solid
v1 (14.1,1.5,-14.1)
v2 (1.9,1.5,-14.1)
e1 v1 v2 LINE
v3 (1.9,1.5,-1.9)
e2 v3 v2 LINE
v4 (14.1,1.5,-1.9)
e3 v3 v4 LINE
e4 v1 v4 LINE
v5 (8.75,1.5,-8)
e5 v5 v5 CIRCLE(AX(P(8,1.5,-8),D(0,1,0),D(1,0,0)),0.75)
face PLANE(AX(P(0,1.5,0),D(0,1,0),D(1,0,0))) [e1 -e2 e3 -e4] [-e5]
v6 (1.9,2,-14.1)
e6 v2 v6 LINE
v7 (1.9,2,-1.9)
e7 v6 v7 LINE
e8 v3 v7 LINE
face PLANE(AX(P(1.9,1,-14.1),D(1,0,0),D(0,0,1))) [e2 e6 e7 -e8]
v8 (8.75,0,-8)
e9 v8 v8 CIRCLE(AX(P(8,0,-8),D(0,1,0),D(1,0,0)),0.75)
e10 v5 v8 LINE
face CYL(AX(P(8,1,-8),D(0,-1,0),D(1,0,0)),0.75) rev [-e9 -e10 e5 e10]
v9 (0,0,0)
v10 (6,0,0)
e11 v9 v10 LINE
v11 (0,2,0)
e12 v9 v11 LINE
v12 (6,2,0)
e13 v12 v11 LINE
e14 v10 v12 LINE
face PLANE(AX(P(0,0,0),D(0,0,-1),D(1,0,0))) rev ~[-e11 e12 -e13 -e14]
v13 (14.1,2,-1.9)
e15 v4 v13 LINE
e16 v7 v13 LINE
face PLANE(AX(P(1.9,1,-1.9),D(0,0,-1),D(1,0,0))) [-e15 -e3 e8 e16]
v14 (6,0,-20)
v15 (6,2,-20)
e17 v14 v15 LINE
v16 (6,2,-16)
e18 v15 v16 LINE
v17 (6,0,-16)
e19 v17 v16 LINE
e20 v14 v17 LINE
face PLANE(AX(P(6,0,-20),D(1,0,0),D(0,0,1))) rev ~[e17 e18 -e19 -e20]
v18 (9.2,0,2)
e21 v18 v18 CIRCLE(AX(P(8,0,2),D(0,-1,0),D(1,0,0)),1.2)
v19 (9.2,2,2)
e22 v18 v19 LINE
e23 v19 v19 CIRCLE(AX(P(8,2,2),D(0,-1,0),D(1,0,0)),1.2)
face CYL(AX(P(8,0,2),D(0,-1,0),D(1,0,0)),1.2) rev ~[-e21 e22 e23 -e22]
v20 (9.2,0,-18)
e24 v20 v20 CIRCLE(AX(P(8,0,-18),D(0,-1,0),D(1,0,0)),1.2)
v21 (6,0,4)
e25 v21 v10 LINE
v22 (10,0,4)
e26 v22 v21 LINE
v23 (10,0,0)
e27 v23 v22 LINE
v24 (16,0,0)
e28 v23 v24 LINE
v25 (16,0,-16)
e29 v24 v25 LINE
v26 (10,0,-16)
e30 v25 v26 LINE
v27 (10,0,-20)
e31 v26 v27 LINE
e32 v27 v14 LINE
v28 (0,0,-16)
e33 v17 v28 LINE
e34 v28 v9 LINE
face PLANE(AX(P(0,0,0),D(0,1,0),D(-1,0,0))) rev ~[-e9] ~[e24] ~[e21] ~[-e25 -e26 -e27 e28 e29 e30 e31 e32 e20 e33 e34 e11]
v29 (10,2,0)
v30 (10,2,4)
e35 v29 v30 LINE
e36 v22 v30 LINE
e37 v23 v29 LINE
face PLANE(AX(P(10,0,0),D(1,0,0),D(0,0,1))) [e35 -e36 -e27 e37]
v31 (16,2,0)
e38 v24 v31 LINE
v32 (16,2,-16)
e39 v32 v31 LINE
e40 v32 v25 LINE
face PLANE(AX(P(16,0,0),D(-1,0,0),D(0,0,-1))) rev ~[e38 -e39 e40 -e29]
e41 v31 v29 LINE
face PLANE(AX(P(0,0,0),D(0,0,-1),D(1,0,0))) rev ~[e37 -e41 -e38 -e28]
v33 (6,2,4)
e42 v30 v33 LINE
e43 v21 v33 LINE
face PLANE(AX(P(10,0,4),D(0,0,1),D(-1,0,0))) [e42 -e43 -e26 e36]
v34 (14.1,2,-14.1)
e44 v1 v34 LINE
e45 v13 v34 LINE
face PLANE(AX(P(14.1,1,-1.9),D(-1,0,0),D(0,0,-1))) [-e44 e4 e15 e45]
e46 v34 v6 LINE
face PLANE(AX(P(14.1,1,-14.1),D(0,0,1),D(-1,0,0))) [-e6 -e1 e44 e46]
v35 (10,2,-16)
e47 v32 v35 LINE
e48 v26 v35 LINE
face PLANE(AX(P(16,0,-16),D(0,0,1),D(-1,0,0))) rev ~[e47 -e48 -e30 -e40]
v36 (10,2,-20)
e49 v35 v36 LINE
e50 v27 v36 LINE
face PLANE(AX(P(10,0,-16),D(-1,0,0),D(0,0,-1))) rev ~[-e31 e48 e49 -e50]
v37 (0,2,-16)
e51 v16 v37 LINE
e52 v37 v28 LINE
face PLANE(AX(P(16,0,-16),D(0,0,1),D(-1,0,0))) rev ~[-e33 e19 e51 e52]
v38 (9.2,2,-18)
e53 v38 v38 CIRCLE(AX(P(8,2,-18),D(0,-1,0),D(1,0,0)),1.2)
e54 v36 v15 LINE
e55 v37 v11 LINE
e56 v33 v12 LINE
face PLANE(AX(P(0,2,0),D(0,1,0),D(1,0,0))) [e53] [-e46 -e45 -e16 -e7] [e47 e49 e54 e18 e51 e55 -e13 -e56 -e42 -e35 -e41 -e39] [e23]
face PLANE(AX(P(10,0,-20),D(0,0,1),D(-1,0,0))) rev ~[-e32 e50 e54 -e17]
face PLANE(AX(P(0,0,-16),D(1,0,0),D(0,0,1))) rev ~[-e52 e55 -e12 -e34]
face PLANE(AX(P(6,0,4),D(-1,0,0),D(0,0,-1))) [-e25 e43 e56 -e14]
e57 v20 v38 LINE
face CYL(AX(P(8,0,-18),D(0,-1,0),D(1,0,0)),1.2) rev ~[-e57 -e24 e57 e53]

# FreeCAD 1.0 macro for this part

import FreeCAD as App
import Part
import Sketcher

V = App.Vector
Q = App.Units.Quantity


def add_polygon(sketch, points):
    """Adds a closed chain of lines whose ends are joined by coincident constraints."""
    first, n = sketch.GeometryCount, len(points)
    for a, b in zip(points, points[1:] + points[:1]):
        sketch.addGeometry(Part.LineSegment(App.Vector(*a, 0), App.Vector(*b, 0)), False)
    for i in range(n):
        sketch.addConstraint(Sketcher.Constraint("Coincident", first + i, 2, first + (i + 1) % n, 1))

doc = App.newDocument("Part")
params = doc.addObject("Spreadsheet::Sheet", "Params")
for row, (alias, value) in enumerate([
    ("sketch1_width", "16 mm"),
    ("pad1_length", "1 mm"),
    ("sketch2_width", "16 mm"),
    ("pad2_length", "1 mm"),
    ("sketch3_diameter", "1.5 mm"),
    ("pocket1_length", "1 mm"),
    ("sketch4_diameter", "2.4 mm"),
    ("sketch4_width", "4 mm"),
    ("pad3_length", "2 mm"),
    ("sketch5_width", "14 mm"),
    ("pad4_length", "1 mm"),
    ("sketch6_diameter", "1.5 mm"),
    ("sketch6_width", "12.2 mm"),
    ("pad5_length", "0.5 mm"),
], start=1):
    params.set(f"A{row}", alias)
    params.set(f"B{row}", "=" + value)
    params.setAlias(f"B{row}", alias)

body = doc.addObject("PartDesign::Body", "Body")

sketch1 = body.newObject("Sketcher::SketchObject", "Sketch")
sketch1.AttachmentSupport = (doc.getObject("XZ_Plane"), [""])
sketch1.MapMode = "FlatFace"
add_polygon(sketch1, [(0, -16), (0, 0), (16, 0), (16, -16)])
sketch1.addConstraint([
    Sketcher.Constraint("Vertical", 0),
    Sketcher.Constraint("Horizontal", 1),
    Sketcher.Constraint("Vertical", 2),
    Sketcher.Constraint("Horizontal", 3),
    Sketcher.Constraint("Coincident", 0, 2, -1, 1),
    Sketcher.Constraint("Equal", 3, 0),
    Sketcher.Constraint("DistanceX", 1, 1, 1, 2, Q("16 mm")),
])
sketch1.setExpression("Constraints[10]", "Params.sketch1_width")
pad1 = body.newObject("PartDesign::Pad", "Pad")
pad1.Profile = sketch1
pad1.setExpression("Length", "Params.pad1_length")
pad1.Reversed = True

sketch2 = body.newObject("Sketcher::SketchObject", "Sketch001")
sketch2.AttachmentSupport = (doc.getObject("XZ_Plane"), [""])
sketch2.MapMode = "FlatFace"
sketch2.AttachmentOffset = App.Placement(V(0, 0, -1), App.Rotation())
add_polygon(sketch2, [(16, 0), (16, -16), (0, -16), (0, 0)])
add_polygon(sketch2, [(15, -1), (1, -1), (1, -15), (15, -15)])
sketch2.addConstraint([
    Sketcher.Constraint("Vertical", 0),
    Sketcher.Constraint("Horizontal", 1),
    Sketcher.Constraint("Vertical", 2),
    Sketcher.Constraint("Horizontal", 3),
    Sketcher.Constraint("Horizontal", 4),
    Sketcher.Constraint("Vertical", 5),
    Sketcher.Constraint("Horizontal", 6),
    Sketcher.Constraint("Vertical", 7),
    Sketcher.Constraint("Coincident", 2, 2, -1, 1),
    Sketcher.Constraint("Equal", 3, 0),
    Sketcher.Constraint("Equal", 6, 5),
    Sketcher.Constraint("DistanceX", -1, 1, 4, 2, Q("1 mm")),
    Sketcher.Constraint("DistanceY", 4, 2, -1, 1, Q("1 mm")),
    Sketcher.Constraint("DistanceY", 1, 2, 5, 2, Q("1 mm")),
    Sketcher.Constraint("DistanceX", 1, 2, 1, 1, Q("16 mm")),
])
sketch2.setExpression("Constraints[22]", "Params.sketch2_width")
pad2 = body.newObject("PartDesign::Pad", "Pad001")
pad2.Profile = sketch2
pad2.setExpression("Length", "Params.pad2_length")
pad2.Reversed = True

sketch3 = body.newObject("Sketcher::SketchObject", "Sketch002")
sketch3.AttachmentSupport = (doc.getObject("XZ_Plane"), [""])
sketch3.MapMode = "FlatFace"
sketch3.AttachmentOffset = App.Placement(V(0, 0, -1), App.Rotation())
sketch3.addGeometry(Part.Circle(V(8, -8, 0), V(0, 0, 1), 0.8), False)
sketch3.addConstraint([
    Sketcher.Constraint("Diameter", 0, Q("1.5 mm")),
    Sketcher.Constraint("DistanceX", -1, 1, 0, 3, Q("8 mm")),
    Sketcher.Constraint("DistanceY", 0, 3, -1, 1, Q("8 mm")),
])
sketch3.setExpression("Constraints[0]", "Params.sketch3_diameter")
pocket1 = body.newObject("PartDesign::Pocket", "Pocket")
pocket1.Profile = sketch3
pocket1.setExpression("Length", "Params.pocket1_length")
pocket1.Reversed = True

sketch4 = body.newObject("Sketcher::SketchObject", "Sketch003")
sketch4.AttachmentSupport = (doc.getObject("XZ_Plane"), [""])
sketch4.MapMode = "FlatFace"
add_polygon(sketch4, [(6, 0), (10, 0), (10, 4), (6, 4)])
sketch4.addGeometry(Part.Circle(V(8, 2, 0), V(0, 0, 1), 1.2), False)
add_polygon(sketch4, [(10, -20), (10, -16), (6, -16), (6, -20)])
sketch4.addGeometry(Part.Circle(V(8, -18, 0), V(0, 0, 1), 1.2), False)
sketch4.addConstraint([
    Sketcher.Constraint("Horizontal", 0),
    Sketcher.Constraint("Vertical", 1),
    Sketcher.Constraint("Horizontal", 2),
    Sketcher.Constraint("Vertical", 3),
    Sketcher.Constraint("Vertical", 5),
    Sketcher.Constraint("Horizontal", 6),
    Sketcher.Constraint("Vertical", 7),
    Sketcher.Constraint("Horizontal", 8),
    Sketcher.Constraint("Equal", 4, 9),
    Sketcher.Constraint("PointOnObject", 0, 2, -1),
    Sketcher.Constraint("Vertical", 4, 3, 9, 3),
    Sketcher.Constraint("Vertical", 1, 2, 5, 2),
    Sketcher.Constraint("Vertical", 3, 2, 6, 2),
    Sketcher.Constraint("Equal", 8, 1),
    Sketcher.Constraint("Equal", 3, 5),
    Sketcher.Constraint("Diameter", 4, Q("2.4 mm")),
    Sketcher.Constraint("DistanceX", 0, 1, 0, 2, Q("4 mm")),
    Sketcher.Constraint("DistanceY", -1, 1, 4, 3, Q("2 mm")),
    Sketcher.Constraint("DistanceX", 4, 3, 0, 2, Q("2 mm")),
    Sketcher.Constraint("DistanceY", 9, 3, 5, 2, Q("2 mm")),
    Sketcher.Constraint("DistanceX", -1, 1, 4, 3, Q("8 mm")),
    Sketcher.Constraint("DistanceY", 9, 3, -1, 1, Q("18 mm")),
])
sketch4.setExpression("Constraints[23]", "Params.sketch4_diameter")
sketch4.setExpression("Constraints[24]", "Params.sketch4_width")
pad3 = body.newObject("PartDesign::Pad", "Pad002")
pad3.Profile = sketch4
pad3.setExpression("Length", "Params.pad3_length")
pad3.Reversed = True

sketch5 = body.newObject("Sketcher::SketchObject", "Sketch004")
sketch5.AttachmentSupport = (doc.getObject("XZ_Plane"), [""])
sketch5.MapMode = "FlatFace"
sketch5.AttachmentOffset = App.Placement(V(0, 0, -1), App.Rotation())
add_polygon(sketch5, [(1, -1), (15, -1), (15, -15), (1, -15)])
add_polygon(sketch5, [(2, -14), (14, -14), (14, -2), (2, -2)])
sketch5.addConstraint([
    Sketcher.Constraint("Horizontal", 0),
    Sketcher.Constraint("Vertical", 1),
    Sketcher.Constraint("Horizontal", 2),
    Sketcher.Constraint("Vertical", 3),
    Sketcher.Constraint("Horizontal", 4),
    Sketcher.Constraint("Vertical", 5),
    Sketcher.Constraint("Horizontal", 6),
    Sketcher.Constraint("Vertical", 7),
    Sketcher.Constraint("Equal", 2, 1),
    Sketcher.Constraint("Equal", 6, 5),
    Sketcher.Constraint("DistanceX", 4, 2, 1, 2, Q("0.9 mm")),
    Sketcher.Constraint("DistanceY", 1, 2, 4, 2, Q("0.9 mm")),
    Sketcher.Constraint("DistanceY", 5, 2, 0, 2, Q("0.9 mm")),
    Sketcher.Constraint("DistanceX", 0, 1, 0, 2, Q("14 mm")),
    Sketcher.Constraint("DistanceX", -1, 1, 0, 2, Q("15 mm")),
    Sketcher.Constraint("DistanceY", 0, 2, -1, 1, Q("1 mm")),
])
sketch5.setExpression("Constraints[21]", "Params.sketch5_width")
pad4 = body.newObject("PartDesign::Pad", "Pad003")
pad4.Profile = sketch5
pad4.setExpression("Length", "Params.pad4_length")
pad4.Reversed = True

sketch6 = body.newObject("Sketcher::SketchObject", "Sketch005")
sketch6.AttachmentSupport = (doc.getObject("XZ_Plane"), [""])
sketch6.MapMode = "FlatFace"
sketch6.AttachmentOffset = App.Placement(V(0, 0, -1), App.Rotation())
add_polygon(sketch6, [(1.9, -14.1), (1.9, -1.9), (14.1, -1.9), (14.1, -14.1)])
sketch6.addGeometry(Part.Circle(V(8, -8, 0), V(0, 0, 1), 0.8), False)
sketch6.addConstraint([
    Sketcher.Constraint("Vertical", 0),
    Sketcher.Constraint("Horizontal", 1),
    Sketcher.Constraint("Vertical", 2),
    Sketcher.Constraint("Horizontal", 3),
    Sketcher.Constraint("Equal", 3, 0),
    Sketcher.Constraint("Diameter", 4, Q("1.5 mm")),
    Sketcher.Constraint("DistanceX", 1, 1, 1, 2, Q("12.2 mm")),
    Sketcher.Constraint("DistanceX", -1, 1, 4, 3, Q("8 mm")),
    Sketcher.Constraint("DistanceY", 4, 3, -1, 1, Q("8 mm")),
    Sketcher.Constraint("DistanceX", -1, 1, 0, 2, Q("1.9 mm")),
    Sketcher.Constraint("DistanceY", 0, 2, -1, 1, Q("1.9 mm")),
])
sketch6.setExpression("Constraints[9]", "Params.sketch6_diameter")
sketch6.setExpression("Constraints[10]", "Params.sketch6_width")
pad5 = body.newObject("PartDesign::Pad", "Pad004")
pad5.Profile = sketch6
pad5.setExpression("Length", "Params.pad5_length")
pad5.Reversed = True

doc.recompute()
